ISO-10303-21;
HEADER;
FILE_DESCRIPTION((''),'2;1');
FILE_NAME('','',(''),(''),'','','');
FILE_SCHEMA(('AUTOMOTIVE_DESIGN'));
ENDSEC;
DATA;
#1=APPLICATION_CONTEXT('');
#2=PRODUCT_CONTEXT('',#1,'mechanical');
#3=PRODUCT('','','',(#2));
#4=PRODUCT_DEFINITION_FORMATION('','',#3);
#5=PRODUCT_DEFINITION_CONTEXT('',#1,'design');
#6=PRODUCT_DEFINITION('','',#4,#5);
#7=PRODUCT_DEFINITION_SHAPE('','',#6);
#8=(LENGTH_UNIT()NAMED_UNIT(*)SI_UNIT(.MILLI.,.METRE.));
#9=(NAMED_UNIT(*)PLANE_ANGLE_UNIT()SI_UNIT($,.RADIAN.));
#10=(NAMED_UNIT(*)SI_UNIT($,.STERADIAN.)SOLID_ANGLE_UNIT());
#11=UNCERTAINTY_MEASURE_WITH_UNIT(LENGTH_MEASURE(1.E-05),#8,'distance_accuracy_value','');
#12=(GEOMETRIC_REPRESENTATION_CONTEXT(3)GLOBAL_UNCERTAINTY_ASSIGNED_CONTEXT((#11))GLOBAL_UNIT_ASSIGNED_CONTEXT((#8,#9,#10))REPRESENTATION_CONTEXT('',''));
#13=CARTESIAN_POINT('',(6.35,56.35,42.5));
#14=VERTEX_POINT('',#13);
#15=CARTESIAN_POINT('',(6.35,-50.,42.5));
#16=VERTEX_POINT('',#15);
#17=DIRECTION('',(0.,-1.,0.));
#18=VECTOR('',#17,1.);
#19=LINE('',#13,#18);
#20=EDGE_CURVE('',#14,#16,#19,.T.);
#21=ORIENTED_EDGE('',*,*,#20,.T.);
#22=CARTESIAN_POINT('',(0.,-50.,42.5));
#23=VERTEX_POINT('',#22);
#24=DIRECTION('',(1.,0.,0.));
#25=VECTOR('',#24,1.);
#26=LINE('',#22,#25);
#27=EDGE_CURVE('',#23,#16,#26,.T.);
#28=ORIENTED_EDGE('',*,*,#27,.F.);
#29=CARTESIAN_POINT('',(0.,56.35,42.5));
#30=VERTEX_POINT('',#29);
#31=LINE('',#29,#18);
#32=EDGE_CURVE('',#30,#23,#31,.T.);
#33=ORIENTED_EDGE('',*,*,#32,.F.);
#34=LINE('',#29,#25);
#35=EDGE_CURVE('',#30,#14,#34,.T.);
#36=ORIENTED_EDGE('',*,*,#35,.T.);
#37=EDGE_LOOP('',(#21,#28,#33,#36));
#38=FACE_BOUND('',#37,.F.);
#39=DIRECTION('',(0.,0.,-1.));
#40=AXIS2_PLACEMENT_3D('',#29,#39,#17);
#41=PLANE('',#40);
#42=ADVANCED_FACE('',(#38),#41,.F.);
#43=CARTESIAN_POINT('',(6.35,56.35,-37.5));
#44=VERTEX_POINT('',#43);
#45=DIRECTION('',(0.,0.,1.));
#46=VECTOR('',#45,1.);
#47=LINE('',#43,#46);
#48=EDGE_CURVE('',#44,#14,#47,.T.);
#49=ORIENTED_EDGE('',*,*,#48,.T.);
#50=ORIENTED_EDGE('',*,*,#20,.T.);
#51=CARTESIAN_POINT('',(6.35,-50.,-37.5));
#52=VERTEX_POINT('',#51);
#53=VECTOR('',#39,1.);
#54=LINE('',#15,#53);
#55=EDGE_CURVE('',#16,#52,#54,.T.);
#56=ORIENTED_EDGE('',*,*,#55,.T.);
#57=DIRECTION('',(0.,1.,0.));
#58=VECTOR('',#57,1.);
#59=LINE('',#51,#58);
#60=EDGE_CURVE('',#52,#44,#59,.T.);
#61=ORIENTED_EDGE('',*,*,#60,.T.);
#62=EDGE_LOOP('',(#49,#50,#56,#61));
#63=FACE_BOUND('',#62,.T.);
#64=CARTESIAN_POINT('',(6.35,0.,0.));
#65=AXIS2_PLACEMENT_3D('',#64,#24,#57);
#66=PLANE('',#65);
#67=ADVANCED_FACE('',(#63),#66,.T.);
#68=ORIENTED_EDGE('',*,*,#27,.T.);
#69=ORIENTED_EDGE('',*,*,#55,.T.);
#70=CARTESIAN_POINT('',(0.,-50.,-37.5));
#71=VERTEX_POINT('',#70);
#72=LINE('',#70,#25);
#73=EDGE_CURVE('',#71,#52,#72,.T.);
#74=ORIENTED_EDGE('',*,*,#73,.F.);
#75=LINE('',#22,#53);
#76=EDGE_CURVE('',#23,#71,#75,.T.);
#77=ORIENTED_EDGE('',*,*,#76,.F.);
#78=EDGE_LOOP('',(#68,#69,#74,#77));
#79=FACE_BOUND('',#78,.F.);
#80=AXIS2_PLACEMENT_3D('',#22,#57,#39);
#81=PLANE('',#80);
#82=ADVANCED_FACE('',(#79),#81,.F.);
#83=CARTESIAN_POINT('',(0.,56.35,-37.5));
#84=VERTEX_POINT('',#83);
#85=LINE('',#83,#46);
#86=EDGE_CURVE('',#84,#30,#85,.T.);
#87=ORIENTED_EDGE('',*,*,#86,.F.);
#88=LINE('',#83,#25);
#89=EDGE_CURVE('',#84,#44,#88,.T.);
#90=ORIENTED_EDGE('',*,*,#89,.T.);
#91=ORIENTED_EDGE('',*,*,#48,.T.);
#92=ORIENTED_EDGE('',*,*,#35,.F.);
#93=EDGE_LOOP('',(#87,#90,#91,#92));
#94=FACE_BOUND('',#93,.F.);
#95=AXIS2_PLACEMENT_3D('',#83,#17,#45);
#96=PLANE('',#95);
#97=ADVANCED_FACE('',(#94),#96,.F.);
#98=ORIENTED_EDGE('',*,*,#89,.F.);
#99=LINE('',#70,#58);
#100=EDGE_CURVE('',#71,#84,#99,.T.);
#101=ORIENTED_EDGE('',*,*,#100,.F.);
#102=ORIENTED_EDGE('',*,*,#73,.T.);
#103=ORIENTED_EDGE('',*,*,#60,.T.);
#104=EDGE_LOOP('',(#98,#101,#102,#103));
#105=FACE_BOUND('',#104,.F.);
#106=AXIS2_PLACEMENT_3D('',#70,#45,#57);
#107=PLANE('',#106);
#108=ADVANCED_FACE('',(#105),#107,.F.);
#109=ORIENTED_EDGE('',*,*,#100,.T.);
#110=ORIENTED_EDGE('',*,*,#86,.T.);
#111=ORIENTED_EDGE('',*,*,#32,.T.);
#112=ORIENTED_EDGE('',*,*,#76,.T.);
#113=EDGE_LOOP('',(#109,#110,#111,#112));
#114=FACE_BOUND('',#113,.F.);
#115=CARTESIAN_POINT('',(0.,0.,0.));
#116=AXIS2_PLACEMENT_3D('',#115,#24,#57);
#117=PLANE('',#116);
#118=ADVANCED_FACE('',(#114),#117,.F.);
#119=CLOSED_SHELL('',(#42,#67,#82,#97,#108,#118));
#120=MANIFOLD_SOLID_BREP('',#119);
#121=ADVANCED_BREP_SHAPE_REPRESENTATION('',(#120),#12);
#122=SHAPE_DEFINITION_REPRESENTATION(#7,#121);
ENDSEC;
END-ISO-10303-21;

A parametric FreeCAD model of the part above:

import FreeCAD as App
import Part
import Sketcher

V = App.Vector


def add_polygon(sketch, points):
    """Adds a closed chain of lines whose ends are joined by coincident constraints."""
    first, n = sketch.GeometryCount, len(points)
    for a, b in zip(points, points[1:] + points[:1]):
        sketch.addGeometry(Part.LineSegment(App.Vector(*a, 0), App.Vector(*b, 0)), False)
    for i in range(n):
        sketch.addConstraint(Sketcher.Constraint("Coincident", first + i, 2, first + (i + 1) % n, 1))

doc = App.newDocument("Part")
body = doc.addObject("PartDesign::Body", "Body")

# Sketch on YZ plane
sketch1 = doc.addObject("Sketcher::SketchObject", "Sketch")
body.addObject(sketch1)
sketch1.AttachmentSupport = (doc.YZ_Plane, [""])
sketch1.MapMode = "FlatFace"
add_polygon(sketch1, [(-50, -38), (56, -38), (56, 42), (-50, 42)])  # lines 0-3
sketch1.addConstraint(Sketcher.Constraint("Horizontal", 0))
sketch1.addConstraint(Sketcher.Constraint("Vertical", 1))
sketch1.addConstraint(Sketcher.Constraint("Horizontal", 2))
sketch1.addConstraint(Sketcher.Constraint("Vertical", 3))
sketch1.addConstraint(Sketcher.Constraint("DistanceY", 1, 1, 1, 2, 80.0))
sketch1.addConstraint(Sketcher.Constraint("DistanceX", 2, 2, -1, 1, 50.0))
sketch1.addConstraint(Sketcher.Constraint("DistanceX", 0, 1, 0, 2, 106.35))
sketch1.addConstraint(Sketcher.Constraint("DistanceY", 0, 2, -1, 1, 37.5))
pad1 = doc.addObject("PartDesign::Pad", "Pad")
body.addObject(pad1)
pad1.Profile = sketch1
pad1.Length = 6.35

doc.recompute()
